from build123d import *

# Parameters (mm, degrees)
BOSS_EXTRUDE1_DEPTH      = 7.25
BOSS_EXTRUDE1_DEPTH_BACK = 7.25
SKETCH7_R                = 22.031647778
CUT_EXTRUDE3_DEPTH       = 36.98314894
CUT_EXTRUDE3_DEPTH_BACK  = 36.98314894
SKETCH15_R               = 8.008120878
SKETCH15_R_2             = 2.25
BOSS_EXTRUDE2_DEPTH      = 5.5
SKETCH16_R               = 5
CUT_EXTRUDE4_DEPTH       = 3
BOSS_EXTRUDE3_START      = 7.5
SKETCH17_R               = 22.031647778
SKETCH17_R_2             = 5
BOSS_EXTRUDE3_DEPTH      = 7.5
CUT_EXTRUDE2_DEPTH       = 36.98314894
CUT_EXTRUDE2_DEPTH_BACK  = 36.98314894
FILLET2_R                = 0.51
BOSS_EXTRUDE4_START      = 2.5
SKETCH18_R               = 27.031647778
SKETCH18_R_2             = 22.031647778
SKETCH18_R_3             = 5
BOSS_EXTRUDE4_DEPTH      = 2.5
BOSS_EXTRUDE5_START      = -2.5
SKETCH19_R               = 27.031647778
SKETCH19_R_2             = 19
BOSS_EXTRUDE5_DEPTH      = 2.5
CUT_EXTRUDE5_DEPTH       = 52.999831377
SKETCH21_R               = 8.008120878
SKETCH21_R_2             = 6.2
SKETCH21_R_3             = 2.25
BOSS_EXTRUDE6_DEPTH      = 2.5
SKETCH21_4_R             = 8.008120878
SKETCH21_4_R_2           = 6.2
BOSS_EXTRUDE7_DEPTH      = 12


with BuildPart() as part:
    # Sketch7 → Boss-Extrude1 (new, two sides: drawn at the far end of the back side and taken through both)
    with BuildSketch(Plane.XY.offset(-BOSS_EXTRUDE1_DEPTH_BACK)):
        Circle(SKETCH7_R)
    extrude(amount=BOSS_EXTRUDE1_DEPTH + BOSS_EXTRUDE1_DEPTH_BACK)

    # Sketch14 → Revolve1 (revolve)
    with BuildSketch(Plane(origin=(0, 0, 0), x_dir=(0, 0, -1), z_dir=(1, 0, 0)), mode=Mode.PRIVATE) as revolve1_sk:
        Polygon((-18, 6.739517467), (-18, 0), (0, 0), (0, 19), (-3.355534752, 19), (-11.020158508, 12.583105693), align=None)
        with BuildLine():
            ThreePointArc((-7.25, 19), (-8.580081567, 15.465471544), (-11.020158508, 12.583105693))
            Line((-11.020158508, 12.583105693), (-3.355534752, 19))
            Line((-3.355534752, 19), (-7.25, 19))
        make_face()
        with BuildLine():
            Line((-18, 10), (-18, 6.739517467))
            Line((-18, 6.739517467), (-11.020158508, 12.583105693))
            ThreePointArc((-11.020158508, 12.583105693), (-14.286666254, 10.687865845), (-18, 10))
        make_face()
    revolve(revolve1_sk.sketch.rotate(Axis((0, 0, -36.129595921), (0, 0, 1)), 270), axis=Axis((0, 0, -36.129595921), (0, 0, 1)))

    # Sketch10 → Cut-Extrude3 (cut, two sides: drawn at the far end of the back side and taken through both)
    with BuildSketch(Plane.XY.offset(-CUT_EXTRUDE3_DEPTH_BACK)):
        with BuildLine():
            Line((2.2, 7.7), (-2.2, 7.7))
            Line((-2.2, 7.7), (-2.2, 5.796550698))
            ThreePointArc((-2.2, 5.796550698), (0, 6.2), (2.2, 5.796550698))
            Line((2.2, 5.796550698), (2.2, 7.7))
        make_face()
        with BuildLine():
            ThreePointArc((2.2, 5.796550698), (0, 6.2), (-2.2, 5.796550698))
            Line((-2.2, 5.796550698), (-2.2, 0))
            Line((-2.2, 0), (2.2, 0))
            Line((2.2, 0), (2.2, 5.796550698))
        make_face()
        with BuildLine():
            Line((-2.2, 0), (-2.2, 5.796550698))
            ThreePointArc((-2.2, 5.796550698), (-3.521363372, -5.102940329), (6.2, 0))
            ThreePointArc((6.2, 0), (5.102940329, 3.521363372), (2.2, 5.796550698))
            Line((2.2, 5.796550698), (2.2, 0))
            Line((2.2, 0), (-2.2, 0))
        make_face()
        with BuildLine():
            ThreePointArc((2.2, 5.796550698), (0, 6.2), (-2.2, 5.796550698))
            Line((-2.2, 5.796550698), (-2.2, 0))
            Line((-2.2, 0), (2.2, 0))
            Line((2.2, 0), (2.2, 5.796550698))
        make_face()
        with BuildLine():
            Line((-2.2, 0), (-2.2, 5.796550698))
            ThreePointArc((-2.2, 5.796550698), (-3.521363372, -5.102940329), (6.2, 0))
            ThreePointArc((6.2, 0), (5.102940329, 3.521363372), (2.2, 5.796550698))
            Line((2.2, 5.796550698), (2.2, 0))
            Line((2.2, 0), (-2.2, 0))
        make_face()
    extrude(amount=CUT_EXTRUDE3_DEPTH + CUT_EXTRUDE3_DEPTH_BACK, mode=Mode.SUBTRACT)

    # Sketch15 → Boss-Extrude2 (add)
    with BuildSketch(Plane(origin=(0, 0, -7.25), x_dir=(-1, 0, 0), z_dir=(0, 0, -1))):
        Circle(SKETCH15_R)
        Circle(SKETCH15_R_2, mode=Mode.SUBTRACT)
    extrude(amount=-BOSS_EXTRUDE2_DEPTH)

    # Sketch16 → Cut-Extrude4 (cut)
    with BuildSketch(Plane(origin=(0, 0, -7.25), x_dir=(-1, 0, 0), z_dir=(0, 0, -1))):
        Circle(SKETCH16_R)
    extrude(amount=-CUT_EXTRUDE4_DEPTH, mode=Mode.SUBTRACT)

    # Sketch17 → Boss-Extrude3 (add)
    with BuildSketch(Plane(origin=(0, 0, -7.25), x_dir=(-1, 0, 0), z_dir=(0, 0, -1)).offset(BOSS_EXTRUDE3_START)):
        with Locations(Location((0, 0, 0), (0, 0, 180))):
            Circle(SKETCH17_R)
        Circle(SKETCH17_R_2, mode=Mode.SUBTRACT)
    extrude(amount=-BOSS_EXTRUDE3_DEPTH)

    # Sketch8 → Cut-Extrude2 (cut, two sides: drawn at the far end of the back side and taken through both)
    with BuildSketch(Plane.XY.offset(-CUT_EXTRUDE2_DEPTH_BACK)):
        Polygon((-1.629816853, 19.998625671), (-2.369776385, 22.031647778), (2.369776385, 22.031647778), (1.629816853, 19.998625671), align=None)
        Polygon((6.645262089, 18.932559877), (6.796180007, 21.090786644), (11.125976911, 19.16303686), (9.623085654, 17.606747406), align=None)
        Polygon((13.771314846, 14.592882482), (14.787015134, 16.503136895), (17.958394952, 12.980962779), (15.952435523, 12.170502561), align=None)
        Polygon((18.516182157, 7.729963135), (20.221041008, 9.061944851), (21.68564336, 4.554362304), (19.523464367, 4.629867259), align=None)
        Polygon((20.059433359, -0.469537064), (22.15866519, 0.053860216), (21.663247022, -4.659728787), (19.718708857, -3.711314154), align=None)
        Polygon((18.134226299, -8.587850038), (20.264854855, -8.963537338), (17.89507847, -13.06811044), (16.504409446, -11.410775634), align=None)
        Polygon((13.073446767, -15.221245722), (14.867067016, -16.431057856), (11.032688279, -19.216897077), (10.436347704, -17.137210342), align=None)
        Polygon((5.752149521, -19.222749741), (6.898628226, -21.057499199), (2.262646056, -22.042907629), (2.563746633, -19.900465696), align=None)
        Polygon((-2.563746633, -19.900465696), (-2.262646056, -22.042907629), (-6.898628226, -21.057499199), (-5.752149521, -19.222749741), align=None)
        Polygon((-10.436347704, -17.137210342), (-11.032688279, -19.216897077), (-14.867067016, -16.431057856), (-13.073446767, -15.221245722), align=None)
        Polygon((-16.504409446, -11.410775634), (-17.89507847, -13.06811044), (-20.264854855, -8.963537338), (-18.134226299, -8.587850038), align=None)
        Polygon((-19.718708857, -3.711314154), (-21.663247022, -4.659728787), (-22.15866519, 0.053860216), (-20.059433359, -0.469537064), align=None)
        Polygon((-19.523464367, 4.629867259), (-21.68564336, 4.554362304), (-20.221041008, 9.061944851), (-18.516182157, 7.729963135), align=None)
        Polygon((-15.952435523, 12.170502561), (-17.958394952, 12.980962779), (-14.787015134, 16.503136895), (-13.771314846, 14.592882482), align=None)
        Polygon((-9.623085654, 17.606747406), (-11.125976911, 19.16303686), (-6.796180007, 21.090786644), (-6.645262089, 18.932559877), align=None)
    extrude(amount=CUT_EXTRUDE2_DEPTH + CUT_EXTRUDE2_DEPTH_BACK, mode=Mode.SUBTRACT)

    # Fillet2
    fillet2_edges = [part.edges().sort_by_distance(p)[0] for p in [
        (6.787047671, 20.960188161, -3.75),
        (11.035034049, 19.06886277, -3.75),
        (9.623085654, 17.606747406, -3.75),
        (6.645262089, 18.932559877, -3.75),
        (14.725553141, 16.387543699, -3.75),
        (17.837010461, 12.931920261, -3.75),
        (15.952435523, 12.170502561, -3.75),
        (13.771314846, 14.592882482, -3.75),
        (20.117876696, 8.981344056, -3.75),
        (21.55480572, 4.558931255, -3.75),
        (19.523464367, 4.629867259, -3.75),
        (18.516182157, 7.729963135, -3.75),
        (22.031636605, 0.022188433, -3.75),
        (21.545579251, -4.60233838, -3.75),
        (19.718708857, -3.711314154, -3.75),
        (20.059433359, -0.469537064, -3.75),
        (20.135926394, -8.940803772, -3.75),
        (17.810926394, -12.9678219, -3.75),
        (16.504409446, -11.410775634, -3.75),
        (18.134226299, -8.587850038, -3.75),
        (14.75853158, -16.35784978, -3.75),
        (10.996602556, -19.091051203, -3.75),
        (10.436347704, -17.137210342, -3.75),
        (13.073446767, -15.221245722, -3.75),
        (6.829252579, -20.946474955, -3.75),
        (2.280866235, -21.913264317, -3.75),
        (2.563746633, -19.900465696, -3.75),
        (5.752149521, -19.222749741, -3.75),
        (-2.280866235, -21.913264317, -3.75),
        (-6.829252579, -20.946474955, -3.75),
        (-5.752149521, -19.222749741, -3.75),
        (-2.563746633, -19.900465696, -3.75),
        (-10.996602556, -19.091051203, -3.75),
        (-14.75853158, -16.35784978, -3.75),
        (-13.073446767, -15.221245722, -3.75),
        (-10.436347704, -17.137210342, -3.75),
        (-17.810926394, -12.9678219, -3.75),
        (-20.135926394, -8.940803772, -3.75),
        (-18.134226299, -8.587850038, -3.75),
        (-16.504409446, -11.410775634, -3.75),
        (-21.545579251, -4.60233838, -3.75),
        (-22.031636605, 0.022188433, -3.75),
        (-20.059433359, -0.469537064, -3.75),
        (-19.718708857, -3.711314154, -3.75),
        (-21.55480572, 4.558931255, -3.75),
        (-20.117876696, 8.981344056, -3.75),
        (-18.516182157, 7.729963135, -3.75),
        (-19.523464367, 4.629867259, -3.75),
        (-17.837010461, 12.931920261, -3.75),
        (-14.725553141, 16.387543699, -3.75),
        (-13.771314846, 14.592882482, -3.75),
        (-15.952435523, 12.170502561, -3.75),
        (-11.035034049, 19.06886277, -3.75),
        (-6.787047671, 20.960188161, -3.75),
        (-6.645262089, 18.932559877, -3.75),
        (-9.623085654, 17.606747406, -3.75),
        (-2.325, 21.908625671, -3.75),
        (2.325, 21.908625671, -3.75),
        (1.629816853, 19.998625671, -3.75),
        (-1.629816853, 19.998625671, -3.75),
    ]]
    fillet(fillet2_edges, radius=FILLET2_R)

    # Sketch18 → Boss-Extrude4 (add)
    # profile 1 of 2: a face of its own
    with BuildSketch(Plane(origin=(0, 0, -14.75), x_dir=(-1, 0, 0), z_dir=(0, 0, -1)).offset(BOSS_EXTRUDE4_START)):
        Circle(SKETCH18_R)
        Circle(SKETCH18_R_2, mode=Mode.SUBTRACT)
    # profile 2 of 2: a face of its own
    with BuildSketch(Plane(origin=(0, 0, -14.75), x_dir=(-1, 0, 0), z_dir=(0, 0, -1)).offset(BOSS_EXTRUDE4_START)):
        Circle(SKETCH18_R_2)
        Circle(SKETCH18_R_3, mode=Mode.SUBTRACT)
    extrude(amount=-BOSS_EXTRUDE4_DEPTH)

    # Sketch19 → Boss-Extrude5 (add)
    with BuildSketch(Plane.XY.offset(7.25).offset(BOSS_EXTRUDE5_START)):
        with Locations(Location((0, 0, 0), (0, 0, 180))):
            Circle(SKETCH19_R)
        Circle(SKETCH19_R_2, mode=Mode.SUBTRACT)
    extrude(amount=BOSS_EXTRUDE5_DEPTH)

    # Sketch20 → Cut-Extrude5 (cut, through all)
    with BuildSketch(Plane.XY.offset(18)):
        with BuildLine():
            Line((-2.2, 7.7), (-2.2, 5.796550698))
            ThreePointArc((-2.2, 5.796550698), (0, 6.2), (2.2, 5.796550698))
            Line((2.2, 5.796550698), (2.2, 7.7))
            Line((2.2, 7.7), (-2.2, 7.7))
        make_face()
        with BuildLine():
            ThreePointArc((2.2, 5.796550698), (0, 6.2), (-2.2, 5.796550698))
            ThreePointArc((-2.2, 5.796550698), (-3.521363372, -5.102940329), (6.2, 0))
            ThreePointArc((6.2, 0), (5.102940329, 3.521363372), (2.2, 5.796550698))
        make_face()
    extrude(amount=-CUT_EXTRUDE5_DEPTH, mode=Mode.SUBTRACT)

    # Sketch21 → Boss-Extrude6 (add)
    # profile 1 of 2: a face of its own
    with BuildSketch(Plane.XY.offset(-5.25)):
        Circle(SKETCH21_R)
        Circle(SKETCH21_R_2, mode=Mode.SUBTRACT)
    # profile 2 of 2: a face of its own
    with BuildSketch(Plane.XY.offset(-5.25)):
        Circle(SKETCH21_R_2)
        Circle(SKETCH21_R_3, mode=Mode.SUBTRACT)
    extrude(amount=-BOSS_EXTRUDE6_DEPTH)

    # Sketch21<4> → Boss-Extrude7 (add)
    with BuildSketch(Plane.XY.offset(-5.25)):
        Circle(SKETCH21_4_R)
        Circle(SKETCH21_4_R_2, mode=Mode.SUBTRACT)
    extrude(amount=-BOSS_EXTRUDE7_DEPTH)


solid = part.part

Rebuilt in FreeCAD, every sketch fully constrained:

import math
import FreeCAD as App
import Part
import Sketcher
from FreeCAD import Vector
Q = App.Units.Quantity


def edges_at(feature, points):
    """Names of the edges that pass closest to the given points."""
    edges = feature.Shape.Edges
    near = lambda p: min(range(len(edges)), key=lambda i: edges[i].distToShape(Part.Vertex(*p))[0])
    return sorted({f"Edge{near(p) + 1}" for p in points})

doc = App.newDocument("Part")
body = doc.addObject("PartDesign::Body", "Body")

# Sketch on XY plane
sketch1 = body.newObject("Sketcher::SketchObject", "Sketch")
sketch1.AttachmentSupport = (doc.getObject("XY_Plane"), [""])
sketch1.MapMode = "FlatFace"
sketch1.addGeometry(Part.Circle(Vector(0, 0, 0), Vector(0, 0, 1), 22), False)
sketch1.addConstraint([
    Sketcher.Constraint("Coincident", 0, 3, -1, 1),
    Sketcher.Constraint("Diameter", 0, Q("44.063296 mm")),
])
pad1 = body.newObject("PartDesign::Pad", "Pad")
pad1.Profile = sketch1
pad1.Type = "TwoLengths"
pad1.Length = 7.25
pad1.Length2 = 7.25

# Sketch on YZ plane
sketch2 = body.newObject("Sketcher::SketchObject", "Sketch001")
sketch2.AttachmentSupport = (doc.getObject("YZ_Plane"), [""])
sketch2.MapMode = "FlatFace"
sketch2.addGeometry([
    Part.LineSegment(Vector(0, 18, 0), Vector(0, 0, 0)),  # 0
    Part.LineSegment(Vector(0, 0, 0), Vector(19, 0, 0)),  # 1
    Part.LineSegment(Vector(19, 0, 0), Vector(19, 7, 0)),  # 2
    Part.ArcOfCircle(Part.Circle(Vector(21, 18, 0), Vector(0, 0, 1), 11), math.radians(-140), math.radians(-101)),  # 3
    Part.ArcOfCircle(Part.Circle(Vector(21, 18, 0), Vector(0, 0, 1), 11), math.radians(-179), math.radians(-140)),  # 4
    Part.LineSegment(Vector(10, 18, 0), Vector(0, 18, 0)),  # 5
], False)
sketch2.addConstraint([
    Sketcher.Constraint("Coincident", 0, 2, 1, 1),
    Sketcher.Constraint("Coincident", 1, 2, 2, 1),
    Sketcher.Constraint("Coincident", 2, 2, 3, 2),
    Sketcher.Constraint("Tangent", 3, 1, 4, 2),
    Sketcher.Constraint("Coincident", 4, 1, 5, 1),
    Sketcher.Constraint("Coincident", 5, 2, 0, 1),
    Sketcher.Constraint("Vertical", 0),
    Sketcher.Constraint("Horizontal", 1),
    Sketcher.Constraint("Vertical", 2),
    Sketcher.Constraint("Horizontal", 5),
    Sketcher.Constraint("Coincident", 0, 2, -1, 1),
    Sketcher.Constraint("Equal", 3, 4),
    Sketcher.Constraint("DistanceX", 1, 1, 1, 2, Q("19 mm")),
    Sketcher.Constraint("DistanceX", 5, 2, 5, 1, Q("10 mm")),
    Sketcher.Constraint("DistanceY", 0, 2, 0, 1, Q("18 mm")),
    Sketcher.Constraint("DistanceY", 2, 1, 2, 2, Q("7.25 mm")),
    Sketcher.Constraint("Radius", 3, Q("11.078125 mm")),
    Sketcher.Constraint("DistanceY", -1, 1, 3, 1, Q("11.020159 mm")),
])
revolution = body.newObject("PartDesign::Revolution", "Revolution")
revolution.Profile = sketch2
revolution.ReferenceAxis = (sketch2, ["V_Axis"])
revolution.Angle = 360

# Sketch on XY plane
sketch3 = body.newObject("Sketcher::SketchObject", "Sketch002")
sketch3.AttachmentSupport = (doc.getObject("XY_Plane"), [""])
sketch3.MapMode = "FlatFace"
sketch3.addGeometry([
    Part.LineSegment(Vector(-2.2, 7.7, 0), Vector(-2.2, 5.8, 0)),  # 0
    Part.ArcOfCircle(Part.Circle(Vector(0, 0, 0), Vector(0, 0, 1), 6.2), math.radians(111), math.radians(360)),  # 1
    Part.ArcOfCircle(Part.Circle(Vector(0, 0, 0), Vector(0, 0, 1), 6.2), math.radians(0), math.radians(69)),  # 2
    Part.LineSegment(Vector(2.2, 5.8, 0), Vector(2.2, 7.7, 0)),  # 3
    Part.LineSegment(Vector(2.2, 7.7, 0), Vector(-2.2, 7.7, 0)),  # 4
], False)
sketch3.addConstraint([
    Sketcher.Constraint("Coincident", 0, 2, 1, 1),
    Sketcher.Constraint("Tangent", 1, 2, 2, 1),
    Sketcher.Constraint("Coincident", 2, 2, 3, 1),
    Sketcher.Constraint("Coincident", 3, 2, 4, 1),
    Sketcher.Constraint("Coincident", 4, 2, 0, 1),
    Sketcher.Constraint("Vertical", 0),
    Sketcher.Constraint("Vertical", 3),
    Sketcher.Constraint("Horizontal", 4),
    Sketcher.Constraint("Coincident", 1, 3, -1, 1),
    Sketcher.Constraint("Equal", 1, 2),
    Sketcher.Constraint("PointOnObject", 1, 2, -1),
    Sketcher.Constraint("Horizontal", 0, 2, 2, 2),
    Sketcher.Constraint("Radius", 1, Q("6.2 mm")),
    Sketcher.Constraint("DistanceX", 4, 2, 4, 1, Q("4.4 mm")),
    Sketcher.Constraint("DistanceY", -1, 1, 3, 2, Q("7.7 mm")),
])
pocket1 = body.newObject("PartDesign::Pocket", "Pocket")
pocket1.Profile = sketch3
pocket1.Type = "ThroughAll"
pocket1.Midplane = True

# Sketch on XY plane
sketch4 = body.newObject("Sketcher::SketchObject", "Sketch003")
sketch4.AttachmentSupport = (doc.getObject("XY_Plane"), [""])
sketch4.MapMode = "FlatFace"
sketch4.AttachmentOffset = App.Placement(Vector(0, 0, -7.25), App.Rotation())
sketch4.addGeometry([
    Part.Circle(Vector(0, 0, 0), Vector(0, 0, 1), 8),
    Part.Circle(Vector(0, 0, 0), Vector(0, 0, 1), 2.2),
], False)
sketch4.addConstraint([
    Sketcher.Constraint("Coincident", 0, 3, -1, 1),
    Sketcher.Constraint("Coincident", 1, 3, -1, 1),
    Sketcher.Constraint("Diameter", 1, Q("4.5 mm")),
    Sketcher.Constraint("Diameter", 0, Q("16.016242 mm")),
])
pad2 = body.newObject("PartDesign::Pad", "Pad001")
pad2.Profile = sketch4
pad2.Length = 5.5

# Sketch on XY plane
sketch5 = body.newObject("Sketcher::SketchObject", "Sketch004")
sketch5.AttachmentSupport = (doc.getObject("XY_Plane"), [""])
sketch5.MapMode = "FlatFace"
sketch5.AttachmentOffset = App.Placement(Vector(0, 0, -7.25), App.Rotation())
sketch5.addGeometry(Part.Circle(Vector(0, 0, 0), Vector(0, 0, 1), 5), False)
sketch5.addConstraint([
    Sketcher.Constraint("Coincident", 0, 3, -1, 1),
    Sketcher.Constraint("Diameter", 0, Q("10 mm")),
])
pocket2 = body.newObject("PartDesign::Pocket", "Pocket001")
pocket2.Profile = sketch5
pocket2.Length = 3
pocket2.Reversed = True

# Sketch on XY plane
sketch6 = body.newObject("Sketcher::SketchObject", "Sketch005")
sketch6.AttachmentSupport = (doc.getObject("XY_Plane"), [""])
sketch6.MapMode = "FlatFace"
sketch6.AttachmentOffset = App.Placement(Vector(0, 0, -14.75), App.Rotation())
sketch6.addGeometry([
    Part.Circle(Vector(0, 0, 0), Vector(0, 0, 1), 22),
    Part.Circle(Vector(0, 0, 0), Vector(0, 0, 1), 5),
], False)
sketch6.addConstraint([
    Sketcher.Constraint("Coincident", 0, 3, -1, 1),
    Sketcher.Constraint("Coincident", 1, 3, -1, 1),
    Sketcher.Constraint("Diameter", 1, Q("10 mm")),
    Sketcher.Constraint("Diameter", 0, Q("44.063296 mm")),
])
pad3 = body.newObject("PartDesign::Pad", "Pad002")
pad3.Profile = sketch6
pad3.Length = 7.5

# Sketch on XY plane
sketch7 = body.newObject("Sketcher::SketchObject", "Sketch006")
sketch7.AttachmentSupport = (doc.getObject("XY_Plane"), [""])
sketch7.MapMode = "FlatFace"
sketch7.addGeometry([
    Part.LineSegment(Vector(-2.4, 22, 0), Vector(-1.6, 20, 0)),  # 0
    Part.LineSegment(Vector(-1.6, 20, 0), Vector(1.6, 20, 0)),  # 1
    Part.LineSegment(Vector(1.6, 20, 0), Vector(2.4, 22, 0)),  # 2
    Part.LineSegment(Vector(2.4, 22, 0), Vector(-2.4, 22, 0)),  # 3
    Part.LineSegment(Vector(6.8, 21.1, 0), Vector(6.6, 18.9, 0)),  # 4
    Part.LineSegment(Vector(6.6, 18.9, 0), Vector(9.6, 17.6, 0)),  # 5
    Part.LineSegment(Vector(9.6, 17.6, 0), Vector(11.1, 19.2, 0)),  # 6
    Part.LineSegment(Vector(11.1, 19.2, 0), Vector(6.8, 21.1, 0)),  # 7
    Part.LineSegment(Vector(14.8, 16.5, 0), Vector(13.8, 14.6, 0)),  # 8
    Part.LineSegment(Vector(13.8, 14.6, 0), Vector(16, 12.2, 0)),  # 9
    Part.LineSegment(Vector(16, 12.2, 0), Vector(18, 13, 0)),  # 10
    Part.LineSegment(Vector(18, 13, 0), Vector(14.8, 16.5, 0)),  # 11
    Part.LineSegment(Vector(20.2, 9.1, 0), Vector(18.5, 7.7, 0)),  # 12
    Part.LineSegment(Vector(18.5, 7.7, 0), Vector(19.5, 4.6, 0)),  # 13
    Part.LineSegment(Vector(19.5, 4.6, 0), Vector(21.7, 4.6, 0)),  # 14
    Part.LineSegment(Vector(21.7, 4.6, 0), Vector(20.2, 9.1, 0)),  # 15
    Part.LineSegment(Vector(22.2, 0.1, 0), Vector(20.1, -0.5, 0)),  # 16
    Part.LineSegment(Vector(20.1, -0.5, 0), Vector(19.7, -3.7, 0)),  # 17
    Part.LineSegment(Vector(19.7, -3.7, 0), Vector(21.7, -4.7, 0)),  # 18
    Part.LineSegment(Vector(21.7, -4.7, 0), Vector(22.2, 0.1, 0)),  # 19
    Part.LineSegment(Vector(20.3, -9, 0), Vector(18.1, -8.6, 0)),  # 20
    Part.LineSegment(Vector(18.1, -8.6, 0), Vector(16.5, -11.4, 0)),  # 21
    Part.LineSegment(Vector(16.5, -11.4, 0), Vector(17.9, -13.1, 0)),  # 22
    Part.LineSegment(Vector(17.9, -13.1, 0), Vector(20.3, -9, 0)),  # 23
    Part.LineSegment(Vector(14.9, -16.4, 0), Vector(13.1, -15.2, 0)),  # 24
    Part.LineSegment(Vector(13.1, -15.2, 0), Vector(10.4, -17.1, 0)),  # 25
    Part.LineSegment(Vector(10.4, -17.1, 0), Vector(11, -19.2, 0)),  # 26
    Part.LineSegment(Vector(11, -19.2, 0), Vector(14.9, -16.4, 0)),  # 27
    Part.LineSegment(Vector(6.9, -21.1, 0), Vector(5.8, -19.2, 0)),  # 28
    Part.LineSegment(Vector(5.8, -19.2, 0), Vector(2.6, -19.9, 0)),  # 29
    Part.LineSegment(Vector(2.6, -19.9, 0), Vector(2.3, -22, 0)),  # 30
    Part.LineSegment(Vector(2.3, -22, 0), Vector(6.9, -21.1, 0)),  # 31
    Part.LineSegment(Vector(-2.3, -22, 0), Vector(-2.6, -19.9, 0)),  # 32
    Part.LineSegment(Vector(-2.6, -19.9, 0), Vector(-5.8, -19.2, 0)),  # 33
    Part.LineSegment(Vector(-5.8, -19.2, 0), Vector(-6.9, -21.1, 0)),  # 34
    Part.LineSegment(Vector(-6.9, -21.1, 0), Vector(-2.3, -22, 0)),  # 35
    Part.LineSegment(Vector(-11, -19.2, 0), Vector(-10.4, -17.1, 0)),  # 36
    Part.LineSegment(Vector(-10.4, -17.1, 0), Vector(-13.1, -15.2, 0)),  # 37
    Part.LineSegment(Vector(-13.1, -15.2, 0), Vector(-14.9, -16.4, 0)),  # 38
    Part.LineSegment(Vector(-14.9, -16.4, 0), Vector(-11, -19.2, 0)),  # 39
    Part.LineSegment(Vector(-17.9, -13.1, 0), Vector(-16.5, -11.4, 0)),  # 40
    Part.LineSegment(Vector(-16.5, -11.4, 0), Vector(-18.1, -8.6, 0)),  # 41
    Part.LineSegment(Vector(-18.1, -8.6, 0), Vector(-20.3, -9, 0)),  # 42
    Part.LineSegment(Vector(-20.3, -9, 0), Vector(-17.9, -13.1, 0)),  # 43
    Part.LineSegment(Vector(-21.7, -4.7, 0), Vector(-19.7, -3.7, 0)),  # 44
    Part.LineSegment(Vector(-19.7, -3.7, 0), Vector(-20.1, -0.5, 0)),  # 45
    Part.LineSegment(Vector(-20.1, -0.5, 0), Vector(-22.2, 0.1, 0)),  # 46
    Part.LineSegment(Vector(-22.2, 0.1, 0), Vector(-21.7, -4.7, 0)),  # 47
    Part.LineSegment(Vector(-21.7, 4.6, 0), Vector(-19.5, 4.6, 0)),  # 48
    Part.LineSegment(Vector(-19.5, 4.6, 0), Vector(-18.5, 7.7, 0)),  # 49
    Part.LineSegment(Vector(-18.5, 7.7, 0), Vector(-20.2, 9.1, 0)),  # 50
    Part.LineSegment(Vector(-20.2, 9.1, 0), Vector(-21.7, 4.6, 0)),  # 51
    Part.LineSegment(Vector(-18, 13, 0), Vector(-16, 12.2, 0)),  # 52
    Part.LineSegment(Vector(-16, 12.2, 0), Vector(-13.8, 14.6, 0)),  # 53
    Part.LineSegment(Vector(-13.8, 14.6, 0), Vector(-14.8, 16.5, 0)),  # 54
    Part.LineSegment(Vector(-14.8, 16.5, 0), Vector(-18, 13, 0)),  # 55
    Part.LineSegment(Vector(-11.1, 19.2, 0), Vector(-9.6, 17.6, 0)),  # 56
    Part.LineSegment(Vector(-9.6, 17.6, 0), Vector(-6.6, 18.9, 0)),  # 57
    Part.LineSegment(Vector(-6.6, 18.9, 0), Vector(-6.8, 21.1, 0)),  # 58
    Part.LineSegment(Vector(-6.8, 21.1, 0), Vector(-11.1, 19.2, 0)),  # 59
], False)
sketch7.addConstraint([
    Sketcher.Constraint("Coincident", 0, 2, 1, 1),
    Sketcher.Constraint("Coincident", 1, 2, 2, 1),
    Sketcher.Constraint("Coincident", 2, 2, 3, 1),
    Sketcher.Constraint("Coincident", 3, 2, 0, 1),
    Sketcher.Constraint("Coincident", 4, 2, 5, 1),
    Sketcher.Constraint("Coincident", 5, 2, 6, 1),
    Sketcher.Constraint("Coincident", 6, 2, 7, 1),
    Sketcher.Constraint("Coincident", 7, 2, 4, 1),
    Sketcher.Constraint("Coincident", 8, 2, 9, 1),
    Sketcher.Constraint("Coincident", 9, 2, 10, 1),
    Sketcher.Constraint("Coincident", 10, 2, 11, 1),
    Sketcher.Constraint("Coincident", 11, 2, 8, 1),
    Sketcher.Constraint("Coincident", 12, 2, 13, 1),
    Sketcher.Constraint("Coincident", 13, 2, 14, 1),
    Sketcher.Constraint("Coincident", 14, 2, 15, 1),
    Sketcher.Constraint("Coincident", 15, 2, 12, 1),
    Sketcher.Constraint("Coincident", 16, 2, 17, 1),
    Sketcher.Constraint("Coincident", 17, 2, 18, 1),
    Sketcher.Constraint("Coincident", 18, 2, 19, 1),
    Sketcher.Constraint("Coincident", 19, 2, 16, 1),
    Sketcher.Constraint("Coincident", 20, 2, 21, 1),
    Sketcher.Constraint("Coincident", 21, 2, 22, 1),
    Sketcher.Constraint("Coincident", 22, 2, 23, 1),
    Sketcher.Constraint("Coincident", 23, 2, 20, 1),
    Sketcher.Constraint("Coincident", 24, 2, 25, 1),
    Sketcher.Constraint("Coincident", 25, 2, 26, 1),
    Sketcher.Constraint("Coincident", 26, 2, 27, 1),
    Sketcher.Constraint("Coincident", 27, 2, 24, 1),
    Sketcher.Constraint("Coincident", 28, 2, 29, 1),
    Sketcher.Constraint("Coincident", 29, 2, 30, 1),
    Sketcher.Constraint("Coincident", 30, 2, 31, 1),
    Sketcher.Constraint("Coincident", 31, 2, 28, 1),
    Sketcher.Constraint("Coincident", 32, 2, 33, 1),
    Sketcher.Constraint("Coincident", 33, 2, 34, 1),
    Sketcher.Constraint("Coincident", 34, 2, 35, 1),
    Sketcher.Constraint("Coincident", 35, 2, 32, 1),
    Sketcher.Constraint("Coincident", 36, 2, 37, 1),
    Sketcher.Constraint("Coincident", 37, 2, 38, 1),
    Sketcher.Constraint("Coincident", 38, 2, 39, 1),
    Sketcher.Constraint("Coincident", 39, 2, 36, 1),
    Sketcher.Constraint("Coincident", 40, 2, 41, 1),
    Sketcher.Constraint("Coincident", 41, 2, 42, 1),
    Sketcher.Constraint("Coincident", 42, 2, 43, 1),
    Sketcher.Constraint("Coincident", 43, 2, 40, 1),
    Sketcher.Constraint("Coincident", 44, 2, 45, 1),
    Sketcher.Constraint("Coincident", 45, 2, 46, 1),
    Sketcher.Constraint("Coincident", 46, 2, 47, 1),
    Sketcher.Constraint("Coincident", 47, 2, 44, 1),
    Sketcher.Constraint("Coincident", 48, 2, 49, 1),
    Sketcher.Constraint("Coincident", 49, 2, 50, 1),
    Sketcher.Constraint("Coincident", 50, 2, 51, 1),
    Sketcher.Constraint("Coincident", 51, 2, 48, 1),
    Sketcher.Constraint("Coincident", 52, 2, 53, 1),
    Sketcher.Constraint("Coincident", 53, 2, 54, 1),
    Sketcher.Constraint("Coincident", 54, 2, 55, 1),
    Sketcher.Constraint("Coincident", 55, 2, 52, 1),
    Sketcher.Constraint("Coincident", 56, 2, 57, 1),
    Sketcher.Constraint("Coincident", 57, 2, 58, 1),
    Sketcher.Constraint("Coincident", 58, 2, 59, 1),
    Sketcher.Constraint("Coincident", 59, 2, 56, 1),
    Sketcher.Constraint("Horizontal", 1),
    Sketcher.Constraint("Horizontal", 3),
    Sketcher.Constraint("Symmetric", 29, 2, 32, 2, -2),
    Sketcher.Constraint("Symmetric", 28, 2, 33, 2, -2),
    Sketcher.Constraint("Symmetric", 31, 2, 34, 2, -2),
    Sketcher.Constraint("Symmetric", 30, 2, 35, 2, -2),
    Sketcher.Constraint("Symmetric", 25, 2, 36, 2, -2),
    Sketcher.Constraint("Symmetric", 24, 2, 37, 2, -2),
    Sketcher.Constraint("Symmetric", 27, 2, 38, 2, -2),
    Sketcher.Constraint("Symmetric", 26, 2, 39, 2, -2),
    Sketcher.Constraint("Symmetric", 21, 2, 40, 2, -2),
    Sketcher.Constraint("Symmetric", 20, 2, 41, 2, -2),
    Sketcher.Constraint("Symmetric", 23, 2, 42, 2, -2),
    Sketcher.Constraint("Symmetric", 22, 2, 43, 2, -2),
    Sketcher.Constraint("Symmetric", 17, 2, 44, 2, -2),
    Sketcher.Constraint("Symmetric", 16, 2, 45, 2, -2),
    Sketcher.Constraint("Symmetric", 19, 2, 46, 2, -2),
    Sketcher.Constraint("Symmetric", 18, 2, 47, 2, -2),
    Sketcher.Constraint("Symmetric", 13, 2, 48, 2, -2),
    Sketcher.Constraint("Symmetric", 12, 2, 49, 2, -2),
    Sketcher.Constraint("Symmetric", 15, 2, 50, 2, -2),
    Sketcher.Constraint("Symmetric", 14, 2, 51, 2, -2),
    Sketcher.Constraint("Symmetric", 9, 2, 52, 2, -2),
    Sketcher.Constraint("Symmetric", 8, 2, 53, 2, -2),
    Sketcher.Constraint("Symmetric", 11, 2, 54, 2, -2),
    Sketcher.Constraint("Symmetric", 10, 2, 55, 2, -2),
    Sketcher.Constraint("Symmetric", 5, 2, 56, 2, -2),
    Sketcher.Constraint("Symmetric", 4, 2, 57, 2, -2),
    Sketcher.Constraint("Symmetric", 7, 2, 58, 2, -2),
    Sketcher.Constraint("Symmetric", 6, 2, 59, 2, -2),
    Sketcher.Constraint("Parallel", 5, 7),
    Sketcher.Constraint("Parallel", 9, 11),
    Sketcher.Constraint("Parallel", 13, 15),
    Sketcher.Constraint("Parallel", 17, 19),
    Sketcher.Constraint("Parallel", 21, 23),
    Sketcher.Constraint("Parallel", 25, 27),
    Sketcher.Constraint("Parallel", 29, 31),
    Sketcher.Constraint("Equal", 0, 2),
    Sketcher.Constraint("Equal", 2, 4),
    Sketcher.Constraint("Equal", 4, 6),
    Sketcher.Constraint("Equal", 6, 8),
    Sketcher.Constraint("Equal", 5, 9),
    Sketcher.Constraint("Equal", 8, 10),
    Sketcher.Constraint("Equal", 7, 11),
    Sketcher.Constraint("Equal", 10, 12),
    Sketcher.Constraint("Equal", 9, 13),
    Sketcher.Constraint("Equal", 12, 14),
    Sketcher.Constraint("Equal", 11, 15),
    Sketcher.Constraint("Equal", 14, 16),
    Sketcher.Constraint("Equal", 13, 17),
    Sketcher.Constraint("Equal", 16, 18),
    Sketcher.Constraint("Equal", 15, 19),
    Sketcher.Constraint("Equal", 18, 20),
    Sketcher.Constraint("Equal", 17, 21),
    Sketcher.Constraint("Equal", 20, 22),
    Sketcher.Constraint("Equal", 19, 23),
    Sketcher.Constraint("Equal", 22, 24),
    Sketcher.Constraint("Equal", 21, 25),
    Sketcher.Constraint("Equal", 24, 26),
    Sketcher.Constraint("Equal", 23, 27),
    Sketcher.Constraint("Equal", 26, 28),
    Sketcher.Constraint("Equal", 25, 29),
    Sketcher.Constraint("Equal", 28, 30),
    Sketcher.Constraint("Equal", 27, 31),
    Sketcher.Constraint("Angle", 0, Q("-70 deg")),
    Sketcher.Constraint("Angle", 4, Q("-94 deg")),
    Sketcher.Constraint("Angle", 5, Q("-24 deg")),
    Sketcher.Constraint("Angle", 8, Q("-118 deg")),
    Sketcher.Constraint("Angle", 12, Q("-142 deg")),
    Sketcher.Constraint("Angle", 16, Q("-166 deg")),
    Sketcher.Constraint("Angle", 20, Q("170 deg")),
    Sketcher.Constraint("Angle", 24, Q("146 deg")),
    Sketcher.Constraint("Angle", 28, Q("122 deg")),
    Sketcher.Constraint("DistanceY", 12, 2, 10, 2, Q("5.251 mm")),
    Sketcher.Constraint("DistanceY", 42, 2, 45, 2, Q("8.494 mm")),
    Sketcher.Constraint("DistanceY", 31, 2, -1, 1, Q("21.057499 mm")),
    Sketcher.Constraint("DistanceY", 5, 2, 2, 2, Q("4.4249 mm")),
    Sketcher.Constraint("DistanceX", 2, 2, 6, 2, Q("8.756201 mm")),
    Sketcher.Constraint("DistanceX", 8, 2, 11, 2, Q("1.0157 mm")),
    Sketcher.Constraint("DistanceY", 11, 2, 6, 2, Q("2.6599 mm")),
    Sketcher.Constraint("DistanceY", 14, 2, 12, 2, Q("3.175601 mm")),
    Sketcher.Constraint("DistanceY", 16, 2, 14, 2, Q("5.023899 mm")),
    Sketcher.Constraint("DistanceX", 13, 2, 19, 2, Q("2.635201 mm")),
    Sketcher.Constraint("DistanceX", 21, 2, 17, 2, Q("3.214299 mm")),
    Sketcher.Constraint("DistanceY", 25, 2, 22, 2, Q("4.0691 mm")),
    Sketcher.Constraint("DistanceX", 28, 2, 25, 2, Q("4.684198 mm")),
    Sketcher.Constraint("DistanceX", 33, 2, 28, 2, Q("11.504299 mm")),
    Sketcher.Constraint("DistanceX", 1, 1, 1, 2, Q("3.259634 mm")),
    Sketcher.Constraint("DistanceY", -1, 1, 4, 2, Q("18.93256 mm")),
    Sketcher.Constraint("DistanceX", -1, 1, 7, 2, Q("6.79618 mm")),
    Sketcher.Constraint("DistanceX", -1, 1, 15, 2, Q("20.221041 mm")),
    Sketcher.Constraint("DistanceX", 5, 2, 8, 2, Q("4.148229 mm")),
])
pocket3 = body.newObject("PartDesign::Pocket", "Pocket002")
pocket3.Profile = sketch7
pocket3.Type = "ThroughAll"
pocket3.Midplane = True
doc.recompute()

fillet = body.newObject("PartDesign::Fillet", "Fillet")
fillet.Base = (pocket3, edges_at(pocket3, [
    (6.787, 20.96, -3.75),
    (11.035, 19.069, -3.75),
    (9.623, 17.607, -3.75),
    (6.645, 18.933, -3.75),
    (14.726, 16.388, -3.75),
    (17.837, 12.932, -3.75),
    (15.952, 12.171, -3.75),
    (13.771, 14.593, -3.75),
    (20.118, 8.981, -3.75),
    (21.555, 4.559, -3.75),
    (19.523, 4.63, -3.75),
    (18.516, 7.73, -3.75),
    (22.032, 0.022, -3.75),
    (21.546, -4.602, -3.75),
    (19.719, -3.711, -3.75),
    (20.059, -0.47, -3.75),
    (20.136, -8.941, -3.75),
    (17.811, -12.968, -3.75),
    (16.504, -11.411, -3.75),
    (18.134, -8.588, -3.75),
    (14.759, -16.358, -3.75),
    (10.997, -19.091, -3.75),
    (10.436, -17.137, -3.75),
    (13.073, -15.221, -3.75),
    (6.829, -20.946, -3.75),
    (2.281, -21.913, -3.75),
    (2.564, -19.9, -3.75),
    (5.752, -19.223, -3.75),
    (-2.281, -21.913, -3.75),
    (-6.829, -20.946, -3.75),
    (-5.752, -19.223, -3.75),
    (-2.564, -19.9, -3.75),
    (-10.997, -19.091, -3.75),
    (-14.759, -16.358, -3.75),
    (-13.073, -15.221, -3.75),
    (-10.436, -17.137, -3.75),
    (-17.811, -12.968, -3.75),
    (-20.136, -8.941, -3.75),
    (-18.134, -8.588, -3.75),
    (-16.504, -11.411, -3.75),
    (-21.546, -4.602, -3.75),
    (-22.032, 0.022, -3.75),
    (-20.059, -0.47, -3.75),
    (-19.719, -3.711, -3.75),
    (-21.555, 4.559, -3.75),
    (-20.118, 8.981, -3.75),
    (-18.516, 7.73, -3.75),
    (-19.523, 4.63, -3.75),
    (-17.837, 12.932, -3.75),
    (-14.726, 16.388, -3.75),
    (-13.771, 14.593, -3.75),
    (-15.952, 12.171, -3.75),
    (-11.035, 19.069, -3.75),
    (-6.787, 20.96, -3.75),
    (-6.645, 18.933, -3.75),
    (-9.623, 17.607, -3.75),
    (-2.325, 21.909, -3.75),
    (2.325, 21.909, -3.75),
    (1.63, 19.999, -3.75),
    (-1.63, 19.999, -3.75),
]))
fillet.Radius = 0.51

# Sketch on XY plane
sketch8 = body.newObject("Sketcher::SketchObject", "Sketch007")
sketch8.AttachmentSupport = (doc.getObject("XY_Plane"), [""])
sketch8.MapMode = "FlatFace"
sketch8.AttachmentOffset = App.Placement(Vector(0, 0, -17.25), App.Rotation())
sketch8.addGeometry([
    Part.Circle(Vector(0, 0, 0), Vector(0, 0, 1), 27),
    Part.Circle(Vector(0, 0, 0), Vector(0, 0, 1), 5),
], False)
sketch8.addConstraint([
    Sketcher.Constraint("Coincident", 0, 3, -1, 1),
    Sketcher.Constraint("Coincident", 1, 3, -1, 1),
    Sketcher.Constraint("Diameter", 1, Q("10 mm")),
    Sketcher.Constraint("Diameter", 0, Q("54.063296 mm")),
])
pad4 = body.newObject("PartDesign::Pad", "Pad003")
pad4.Profile = sketch8
pad4.Length = 2.5

# Sketch on XY plane
sketch9 = body.newObject("Sketcher::SketchObject", "Sketch008")
sketch9.AttachmentSupport = (doc.getObject("XY_Plane"), [""])
sketch9.MapMode = "FlatFace"
sketch9.AttachmentOffset = App.Placement(Vector(0, 0, 4.75), App.Rotation())
sketch9.addGeometry([
    Part.Circle(Vector(0, 0, 0), Vector(0, 0, 1), 27),
    Part.Circle(Vector(0, 0, 0), Vector(0, 0, 1), 19),
], False)
sketch9.addConstraint([
    Sketcher.Constraint("Coincident", 0, 3, -1, 1),
    Sketcher.Constraint("Coincident", 1, 3, -1, 1),
    Sketcher.Constraint("Diameter", 1, Q("38 mm")),
    Sketcher.Constraint("Diameter", 0, Q("54.063296 mm")),
])
pad5 = body.newObject("PartDesign::Pad", "Pad004")
pad5.Profile = sketch9
pad5.Length = 2.5

# Sketch on XY plane
sketch10 = body.newObject("Sketcher::SketchObject", "Sketch009")
sketch10.AttachmentSupport = (doc.getObject("XY_Plane"), [""])
sketch10.MapMode = "FlatFace"
sketch10.AttachmentOffset = App.Placement(Vector(0, 0, 18), App.Rotation())
sketch10.addGeometry([
    Part.LineSegment(Vector(-2.2, 7.7, 0), Vector(-2.2, 5.8, 0)),  # 0
    Part.ArcOfCircle(Part.Circle(Vector(0, 0, 0), Vector(0, 0, 1), 6.2), math.radians(111), math.radians(360)),  # 1
    Part.ArcOfCircle(Part.Circle(Vector(0, 0, 0), Vector(0, 0, 1), 6.2), math.radians(0), math.radians(69)),  # 2
    Part.LineSegment(Vector(2.2, 5.8, 0), Vector(2.2, 7.7, 0)),  # 3
    Part.LineSegment(Vector(2.2, 7.7, 0), Vector(-2.2, 7.7, 0)),  # 4
], False)
sketch10.addConstraint([
    Sketcher.Constraint("Coincident", 0, 2, 1, 1),
    Sketcher.Constraint("Tangent", 1, 2, 2, 1),
    Sketcher.Constraint("Coincident", 2, 2, 3, 1),
    Sketcher.Constraint("Coincident", 3, 2, 4, 1),
    Sketcher.Constraint("Coincident", 4, 2, 0, 1),
    Sketcher.Constraint("Vertical", 0),
    Sketcher.Constraint("Vertical", 3),
    Sketcher.Constraint("Horizontal", 4),
    Sketcher.Constraint("Coincident", 1, 3, -1, 1),
    Sketcher.Constraint("Equal", 1, 2),
    Sketcher.Constraint("PointOnObject", 1, 2, -1),
    Sketcher.Constraint("Horizontal", 0, 2, 2, 2),
    Sketcher.Constraint("Radius", 1, Q("6.2 mm")),
    Sketcher.Constraint("DistanceX", 4, 2, 4, 1, Q("4.4 mm")),
    Sketcher.Constraint("DistanceY", -1, 1, 3, 2, Q("7.7 mm")),
])
pocket4 = body.newObject("PartDesign::Pocket", "Pocket003")
pocket4.Profile = sketch10
pocket4.Type = "ThroughAll"

# Sketch on XY plane
sketch11 = body.newObject("Sketcher::SketchObject", "Sketch010")
sketch11.AttachmentSupport = (doc.getObject("XY_Plane"), [""])
sketch11.MapMode = "FlatFace"
sketch11.AttachmentOffset = App.Placement(Vector(0, 0, -5.25), App.Rotation())
sketch11.addGeometry([
    Part.Circle(Vector(0, 0, 0), Vector(0, 0, 1), 8),
    Part.Circle(Vector(0, 0, 0), Vector(0, 0, 1), 2.2),
], False)
sketch11.addConstraint([
    Sketcher.Constraint("Coincident", 0, 3, -1, 1),
    Sketcher.Constraint("Coincident", 1, 3, -1, 1),
    Sketcher.Constraint("Diameter", 1, Q("4.5 mm")),
    Sketcher.Constraint("Diameter", 0, Q("16.016242 mm")),
])
pad6 = body.newObject("PartDesign::Pad", "Pad005")
pad6.Profile = sketch11
pad6.Length = 2.5
pad6.Reversed = True

# Sketch on XY plane
sketch12 = body.newObject("Sketcher::SketchObject", "Sketch011")
sketch12.AttachmentSupport = (doc.getObject("XY_Plane"), [""])
sketch12.MapMode = "FlatFace"
sketch12.AttachmentOffset = App.Placement(Vector(0, 0, -5.25), App.Rotation())
sketch12.addGeometry([
    Part.Circle(Vector(0, 0, 0), Vector(0, 0, 1), 8),
    Part.Circle(Vector(0, 0, 0), Vector(0, 0, 1), 6),
], False)
sketch12.addConstraint([
    Sketcher.Constraint("Coincident", 0, 3, -1, 1),
    Sketcher.Constraint("Coincident", 1, 3, -1, 1),
    Sketcher.Constraint("Diameter", 1, Q("12.4 mm")),
    Sketcher.Constraint("Diameter", 0, Q("16.016242 mm")),
])
pad7 = body.newObject("PartDesign::Pad", "Pad006")
pad7.Profile = sketch12
pad7.Length = 12
pad7.Reversed = True

doc.recompute()
